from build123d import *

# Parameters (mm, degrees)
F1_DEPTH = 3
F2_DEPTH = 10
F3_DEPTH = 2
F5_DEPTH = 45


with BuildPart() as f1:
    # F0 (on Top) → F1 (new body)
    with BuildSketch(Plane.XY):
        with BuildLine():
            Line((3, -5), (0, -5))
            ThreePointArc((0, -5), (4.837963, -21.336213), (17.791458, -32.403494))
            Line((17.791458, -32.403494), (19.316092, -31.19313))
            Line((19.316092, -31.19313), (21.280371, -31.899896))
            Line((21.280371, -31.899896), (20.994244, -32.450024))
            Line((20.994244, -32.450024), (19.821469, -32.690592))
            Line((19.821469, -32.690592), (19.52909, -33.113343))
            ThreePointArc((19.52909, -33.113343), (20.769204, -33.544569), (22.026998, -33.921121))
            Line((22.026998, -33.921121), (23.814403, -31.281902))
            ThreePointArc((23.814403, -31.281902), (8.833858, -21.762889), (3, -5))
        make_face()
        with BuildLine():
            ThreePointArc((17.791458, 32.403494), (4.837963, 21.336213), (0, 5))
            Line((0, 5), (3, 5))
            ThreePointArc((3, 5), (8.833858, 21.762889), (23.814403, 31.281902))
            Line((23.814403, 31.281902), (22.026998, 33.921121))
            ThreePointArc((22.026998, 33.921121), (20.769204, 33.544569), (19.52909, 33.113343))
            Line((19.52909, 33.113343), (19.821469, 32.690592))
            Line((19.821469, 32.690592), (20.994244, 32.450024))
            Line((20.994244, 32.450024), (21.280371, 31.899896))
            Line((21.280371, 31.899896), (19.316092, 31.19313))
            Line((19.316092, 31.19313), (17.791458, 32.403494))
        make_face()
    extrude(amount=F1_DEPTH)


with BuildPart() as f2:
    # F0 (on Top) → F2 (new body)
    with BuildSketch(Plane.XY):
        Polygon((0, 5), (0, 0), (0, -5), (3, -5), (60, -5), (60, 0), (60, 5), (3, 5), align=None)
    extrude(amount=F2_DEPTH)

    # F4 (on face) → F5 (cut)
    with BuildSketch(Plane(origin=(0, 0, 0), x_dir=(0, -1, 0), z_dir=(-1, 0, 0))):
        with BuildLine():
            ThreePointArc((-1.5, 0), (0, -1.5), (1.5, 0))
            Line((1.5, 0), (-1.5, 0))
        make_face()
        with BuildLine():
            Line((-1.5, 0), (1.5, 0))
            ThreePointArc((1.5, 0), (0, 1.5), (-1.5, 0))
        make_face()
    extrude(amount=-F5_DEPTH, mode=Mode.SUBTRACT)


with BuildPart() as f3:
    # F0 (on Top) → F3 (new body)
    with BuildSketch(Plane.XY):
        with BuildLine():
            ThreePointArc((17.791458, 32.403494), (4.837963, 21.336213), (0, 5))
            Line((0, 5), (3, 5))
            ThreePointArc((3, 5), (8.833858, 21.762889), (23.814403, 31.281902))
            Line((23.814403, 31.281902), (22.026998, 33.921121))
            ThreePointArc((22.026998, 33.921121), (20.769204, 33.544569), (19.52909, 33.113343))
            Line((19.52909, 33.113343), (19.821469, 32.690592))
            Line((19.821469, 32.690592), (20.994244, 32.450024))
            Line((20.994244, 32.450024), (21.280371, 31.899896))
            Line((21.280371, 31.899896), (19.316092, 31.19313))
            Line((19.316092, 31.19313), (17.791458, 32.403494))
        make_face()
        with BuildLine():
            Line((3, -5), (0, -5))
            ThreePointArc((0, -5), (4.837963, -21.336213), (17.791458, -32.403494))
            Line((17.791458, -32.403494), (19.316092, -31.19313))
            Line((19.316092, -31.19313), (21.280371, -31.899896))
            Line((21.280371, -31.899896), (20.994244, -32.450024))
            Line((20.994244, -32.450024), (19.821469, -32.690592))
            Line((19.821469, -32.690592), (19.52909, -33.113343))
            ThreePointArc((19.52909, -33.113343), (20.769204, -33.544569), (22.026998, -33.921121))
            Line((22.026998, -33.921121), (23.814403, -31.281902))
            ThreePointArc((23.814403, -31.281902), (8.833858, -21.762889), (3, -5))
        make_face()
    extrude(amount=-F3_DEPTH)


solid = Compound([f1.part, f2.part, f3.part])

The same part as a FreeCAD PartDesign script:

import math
import FreeCAD as App
import Part
import Sketcher
Q = App.Units.Quantity


def add_polygon(sketch, points):
    """Adds a closed chain of lines whose ends are joined by coincident constraints."""
    first, n = sketch.GeometryCount, len(points)
    for a, b in zip(points, points[1:] + points[:1]):
        sketch.addGeometry(Part.LineSegment(App.Vector(*a, 0), App.Vector(*b, 0)), False)
    for i in range(n):
        sketch.addConstraint(Sketcher.Constraint("Coincident", first + i, 2, first + (i + 1) % n, 1))

doc = App.newDocument("Part")
body = doc.addObject("PartDesign::Body", "Body")
body.AllowCompound = True

# Sketch on XY plane
sketch1 = body.newObject("Sketcher::SketchObject", "Sketch")
sketch1.AttachmentSupport = (doc.getObject("XY_Plane"), [""])
sketch1.MapMode = "FlatFace"
sketch1.addGeometry([
    Part.LineSegment(App.Vector(3, -5, 0), App.Vector(0, -5, 0)),  # 0
    Part.ArcOfCircle(Part.Circle(App.Vector(30.000002, -4.999998, 0), App.Vector(0, 0, 1), 30.000002), math.radians(-179.999996), math.radians(-114.013473)),  # 1
    Part.LineSegment(App.Vector(17.791458, -32.403494, 0), App.Vector(19.316092, -31.19313, 0)),  # 2
    Part.LineSegment(App.Vector(19.316092, -31.19313, 0), App.Vector(21.280371, -31.899896, 0)),  # 3
    Part.LineSegment(App.Vector(21.280371, -31.899896, 0), App.Vector(20.994244, -32.450024, 0)),  # 4
    Part.LineSegment(App.Vector(20.994244, -32.450024, 0), App.Vector(19.821469, -32.690592, 0)),  # 5
    Part.LineSegment(App.Vector(19.821469, -32.690592, 0), App.Vector(19.52909, -33.113343, 0)),  # 6
    Part.ArcOfCircle(Part.Circle(App.Vector(29.999953, -5.000138, 0), App.Vector(0, 0, 1), 29.999855), math.radians(-110.428026), math.radians(-105.412501)),  # 7
    Part.LineSegment(App.Vector(22.026998, -33.921121, 0), App.Vector(23.814403, -31.281902, 0)),  # 8
    Part.ArcOfCircle(Part.Circle(App.Vector(29.999998, -5.000001, 0), App.Vector(0, 0, 1), 26.999998), math.radians(179.999998), math.radians(256.756137)),  # 9
    Part.ArcOfCircle(Part.Circle(App.Vector(30.000002, 4.999998, 0), App.Vector(0, 0, 1), 30.000002), math.radians(114.013473), math.radians(179.999996)),  # 10
    Part.LineSegment(App.Vector(0, 5, 0), App.Vector(3, 5, 0)),  # 11
    Part.ArcOfCircle(Part.Circle(App.Vector(29.999998, 5.000001, 0), App.Vector(0, 0, 1), 26.999998), math.radians(103.243863), math.radians(180.000002)),  # 12
    Part.LineSegment(App.Vector(23.814403, 31.281902, 0), App.Vector(22.026998, 33.921121, 0)),  # 13
    Part.ArcOfCircle(Part.Circle(App.Vector(29.999953, 5.000138, 0), App.Vector(0, 0, 1), 29.999855), math.radians(105.412501), math.radians(110.428026)),  # 14
    Part.LineSegment(App.Vector(19.52909, 33.113343, 0), App.Vector(19.821469, 32.690592, 0)),  # 15
    Part.LineSegment(App.Vector(19.821469, 32.690592, 0), App.Vector(20.994244, 32.450024, 0)),  # 16
    Part.LineSegment(App.Vector(20.994244, 32.450024, 0), App.Vector(21.280371, 31.899896, 0)),  # 17
    Part.LineSegment(App.Vector(21.280371, 31.899896, 0), App.Vector(19.316092, 31.19313, 0)),  # 18
    Part.LineSegment(App.Vector(19.316092, 31.19313, 0), App.Vector(17.791458, 32.403494, 0)),  # 19
], False)
sketch1.addConstraint([
    Sketcher.Constraint("Coincident", 0, 2, 1, 1),
    Sketcher.Constraint("Coincident", 1, 2, 2, 1),
    Sketcher.Constraint("Coincident", 2, 2, 3, 1),
    Sketcher.Constraint("Coincident", 3, 2, 4, 1),
    Sketcher.Constraint("Coincident", 4, 2, 5, 1),
    Sketcher.Constraint("Coincident", 5, 2, 6, 1),
    Sketcher.Constraint("Coincident", 6, 2, 7, 1),
    Sketcher.Constraint("Coincident", 7, 2, 8, 1),
    Sketcher.Constraint("Coincident", 8, 2, 9, 2),
    Sketcher.Constraint("Coincident", 9, 1, 0, 1),
    Sketcher.Constraint("Coincident", 10, 2, 11, 1),
    Sketcher.Constraint("Coincident", 11, 2, 12, 2),
    Sketcher.Constraint("Coincident", 12, 1, 13, 1),
    Sketcher.Constraint("Coincident", 13, 2, 14, 1),
    Sketcher.Constraint("Coincident", 14, 2, 15, 1),
    Sketcher.Constraint("Coincident", 15, 2, 16, 1),
    Sketcher.Constraint("Coincident", 16, 2, 17, 1),
    Sketcher.Constraint("Coincident", 17, 2, 18, 1),
    Sketcher.Constraint("Coincident", 18, 2, 19, 1),
    Sketcher.Constraint("Coincident", 19, 2, 10, 1),
    Sketcher.Constraint("Horizontal", 0),
    Sketcher.Constraint("Horizontal", 11),
    Sketcher.Constraint("Coincident", 9, 3, 1, 3),
    Sketcher.Constraint("Coincident", 12, 3, 10, 3),
    Sketcher.Constraint("PointOnObject", 0, 2, -2),
    Sketcher.Constraint("PointOnObject", 10, 2, -2),
    Sketcher.Constraint("Radius", 9, Q("26.999998 mm")),
    Sketcher.Constraint("Radius", 12, Q("26.999998 mm")),
    Sketcher.Constraint("DistanceX", 0, 2, 0, 1, Q("3 mm")),
    Sketcher.Constraint("DistanceX", 11, 1, 11, 2, Q("3 mm")),
    Sketcher.Constraint("DistanceY", 1, 3, -1, 1, Q("4.999998 mm")),
    Sketcher.Constraint("DistanceY", -1, 1, 10, 3, Q("4.999998 mm")),
    Sketcher.Constraint("DistanceY", 0, 2, -1, 1, Q("5 mm")),
    Sketcher.Constraint("DistanceY", -1, 1, 10, 2, Q("5 mm")),
    Sketcher.Constraint("Radius", 7, Q("29.999855 mm")),
    Sketcher.Constraint("Radius", 14, Q("29.999855 mm")),
    Sketcher.Constraint("DistanceX", 13, 2, 12, 3, Q("7.973 mm")),
    Sketcher.Constraint("DistanceY", 8, 2, -1, 1, Q("31.281902 mm")),
    Sketcher.Constraint("DistanceY", 1, 2, 3, 2, Q("0.503598 mm")),
    Sketcher.Constraint("DistanceX", 5, 2, 3, 2, Q("1.458902 mm")),
    Sketcher.Constraint("DistanceY", 12, 3, 12, 1, Q("26.281901 mm")),
    Sketcher.Constraint("DistanceX", 15, 2, 17, 2, Q("1.458902 mm")),
    Sketcher.Constraint("DistanceY", 19, 2, 15, 2, Q("0.287098 mm")),
    Sketcher.Constraint("DistanceY", 17, 2, 19, 2, Q("0.503598 mm")),
    Sketcher.Constraint("Distance", 2, Q("1.946661 mm")),
    Sketcher.Constraint("Distance", 3, Q("2.087561 mm")),
    Sketcher.Constraint("Distance", 4, Q("0.620088 mm")),
    Sketcher.Constraint("Distance", 8, Q("3.187522 mm")),
    Sketcher.Constraint("Distance", 13, Q("3.187522 mm")),
    Sketcher.Constraint("Distance", 17, Q("0.620088 mm")),
    Sketcher.Constraint("Distance", 18, Q("2.087561 mm")),
    Sketcher.Constraint("Distance", 19, Q("1.946661 mm")),
    Sketcher.Constraint("DistanceY", 2, 2, -1, 1, Q("31.19313 mm")),
    Sketcher.Constraint("DistanceX", -1, 1, 3, 2, Q("21.280371 mm")),
    Sketcher.Constraint("DistanceX", -1, 1, 6, 2, Q("19.52909 mm")),
    Sketcher.Constraint("DistanceY", 7, 2, -1, 1, Q("33.921121 mm")),
    Sketcher.Constraint("DistanceX", -1, 1, 14, 2, Q("19.52909 mm")),
    Sketcher.Constraint("DistanceX", -1, 1, 15, 2, Q("19.821469 mm")),
    Sketcher.Constraint("DistanceY", -1, 1, 18, 2, Q("31.19313 mm")),
    Sketcher.Constraint("DistanceY", 7, 3, 1, 3, Q("0.00014 mm")),
    Sketcher.Constraint("DistanceY", 10, 3, 14, 3, Q("0.00014 mm")),
    Sketcher.Constraint("DistanceY", 4, 2, 3, 2, Q("0.550128 mm")),
    Sketcher.Constraint("DistanceY", 5, 2, 4, 2, Q("0.240568 mm")),
    Sketcher.Constraint("DistanceY", 16, 2, 15, 2, Q("0.240568 mm")),
])
pad1 = body.newObject("PartDesign::Pad", "Pad")
pad1.Profile = sketch1
pad1.Length = 3
body2 = doc.addObject("PartDesign::Body", "Body001")

# Sketch on XY plane
sketch2 = body2.newObject("Sketcher::SketchObject", "Sketch001")
sketch2.AttachmentSupport = (doc.getObject("XY_Plane001"), [""])
sketch2.MapMode = "FlatFace"
add_polygon(sketch2, [(0, 5), (0, -5), (60, -5), (60, 5)])  # lines 0-3
sketch2.addConstraint([
    Sketcher.Constraint("Vertical", 0),
    Sketcher.Constraint("Horizontal", 1),
    Sketcher.Constraint("Vertical", 2),
    Sketcher.Constraint("Horizontal", 3),
    Sketcher.Constraint("Symmetric", 0, 2, 3, 2, -1, 1),
    Sketcher.Constraint("DistanceX", 1, 1, 1, 2, Q("60 mm")),
    Sketcher.Constraint("DistanceY", 0, 2, 0, 1, Q("10 mm")),
])
pad2 = body2.newObject("PartDesign::Pad", "Pad001")
pad2.Profile = sketch2
pad2.Length = 10

# Sketch on YZ plane
sketch3 = body2.newObject("Sketcher::SketchObject", "Sketch002")
sketch3.AttachmentSupport = (doc.getObject("YZ_Plane001"), [""])
sketch3.MapMode = "FlatFace"
sketch3.addGeometry(Part.Circle(App.Vector(0, 0, 0), App.Vector(0, 0, 1), 1.5), False)
sketch3.addConstraint([
    Sketcher.Constraint("Coincident", 0, 3, -1, 1),
    Sketcher.Constraint("Diameter", 0, Q("3 mm")),
])
pocket1 = body2.newObject("PartDesign::Pocket", "Pocket")
pocket1.Profile = sketch3
pocket1.Length = 45
pocket1.Reversed = True
body3 = doc.addObject("PartDesign::Body", "Body002")
body3.AllowCompound = True

# Sketch on XY plane
sketch4 = body3.newObject("Sketcher::SketchObject", "Sketch003")
sketch4.AttachmentSupport = (doc.getObject("XY_Plane002"), [""])
sketch4.MapMode = "FlatFace"
sketch4.addGeometry([
    Part.ArcOfCircle(Part.Circle(App.Vector(30.000002, 4.999998, 0), App.Vector(0, 0, 1), 30.000002), math.radians(114.013473), math.radians(179.999996)),  # 0
    Part.LineSegment(App.Vector(0, 5, 0), App.Vector(3, 5, 0)),  # 1
    Part.ArcOfCircle(Part.Circle(App.Vector(29.999998, 5.000001, 0), App.Vector(0, 0, 1), 26.999998), math.radians(103.243863), math.radians(180.000002)),  # 2
    Part.LineSegment(App.Vector(23.814403, 31.281902, 0), App.Vector(22.026998, 33.921121, 0)),  # 3
    Part.ArcOfCircle(Part.Circle(App.Vector(29.999953, 5.000138, 0), App.Vector(0, 0, 1), 29.999855), math.radians(105.412501), math.radians(110.428026)),  # 4
    Part.LineSegment(App.Vector(19.52909, 33.113343, 0), App.Vector(19.821469, 32.690592, 0)),  # 5
    Part.LineSegment(App.Vector(19.821469, 32.690592, 0), App.Vector(20.994244, 32.450024, 0)),  # 6
    Part.LineSegment(App.Vector(20.994244, 32.450024, 0), App.Vector(21.280371, 31.899896, 0)),  # 7
    Part.LineSegment(App.Vector(21.280371, 31.899896, 0), App.Vector(19.316092, 31.19313, 0)),  # 8
    Part.LineSegment(App.Vector(19.316092, 31.19313, 0), App.Vector(17.791458, 32.403494, 0)),  # 9
    Part.LineSegment(App.Vector(3, -5, 0), App.Vector(0, -5, 0)),  # 10
    Part.ArcOfCircle(Part.Circle(App.Vector(30.000002, -4.999998, 0), App.Vector(0, 0, 1), 30.000002), math.radians(-179.999996), math.radians(-114.013473)),  # 11
    Part.LineSegment(App.Vector(17.791458, -32.403494, 0), App.Vector(19.316092, -31.19313, 0)),  # 12
    Part.LineSegment(App.Vector(19.316092, -31.19313, 0), App.Vector(21.280371, -31.899896, 0)),  # 13
    Part.LineSegment(App.Vector(21.280371, -31.899896, 0), App.Vector(20.994244, -32.450024, 0)),  # 14
    Part.LineSegment(App.Vector(20.994244, -32.450024, 0), App.Vector(19.821469, -32.690592, 0)),  # 15
    Part.LineSegment(App.Vector(19.821469, -32.690592, 0), App.Vector(19.52909, -33.113343, 0)),  # 16
    Part.ArcOfCircle(Part.Circle(App.Vector(29.999953, -5.000138, 0), App.Vector(0, 0, 1), 29.999855), math.radians(-110.428026), math.radians(-105.412501)),  # 17
    Part.LineSegment(App.Vector(22.026998, -33.921121, 0), App.Vector(23.814403, -31.281902, 0)),  # 18
    Part.ArcOfCircle(Part.Circle(App.Vector(29.999998, -5.000001, 0), App.Vector(0, 0, 1), 26.999998), math.radians(179.999998), math.radians(256.756137)),  # 19
], False)
sketch4.addConstraint([
    Sketcher.Constraint("Coincident", 0, 2, 1, 1),
    Sketcher.Constraint("Coincident", 1, 2, 2, 2),
    Sketcher.Constraint("Coincident", 2, 1, 3, 1),
    Sketcher.Constraint("Coincident", 3, 2, 4, 1),
    Sketcher.Constraint("Coincident", 4, 2, 5, 1),
    Sketcher.Constraint("Coincident", 5, 2, 6, 1),
    Sketcher.Constraint("Coincident", 6, 2, 7, 1),
    Sketcher.Constraint("Coincident", 7, 2, 8, 1),
    Sketcher.Constraint("Coincident", 8, 2, 9, 1),
    Sketcher.Constraint("Coincident", 9, 2, 0, 1),
    Sketcher.Constraint("Coincident", 10, 2, 11, 1),
    Sketcher.Constraint("Coincident", 11, 2, 12, 1),
    Sketcher.Constraint("Coincident", 12, 2, 13, 1),
    Sketcher.Constraint("Coincident", 13, 2, 14, 1),
    Sketcher.Constraint("Coincident", 14, 2, 15, 1),
    Sketcher.Constraint("Coincident", 15, 2, 16, 1),
    Sketcher.Constraint("Coincident", 16, 2, 17, 1),
    Sketcher.Constraint("Coincident", 17, 2, 18, 1),
    Sketcher.Constraint("Coincident", 18, 2, 19, 2),
    Sketcher.Constraint("Coincident", 19, 1, 10, 1),
    Sketcher.Constraint("Horizontal", 1),
    Sketcher.Constraint("Horizontal", 10),
    Sketcher.Constraint("Coincident", 2, 3, 0, 3),
    Sketcher.Constraint("Coincident", 19, 3, 11, 3),
    Sketcher.Constraint("PointOnObject", 0, 2, -2),
    Sketcher.Constraint("PointOnObject", 10, 2, -2),
    Sketcher.Constraint("Radius", 2, Q("26.999998 mm")),
    Sketcher.Constraint("Radius", 19, Q("26.999998 mm")),
    Sketcher.Constraint("DistanceX", 1, 1, 1, 2, Q("3 mm")),
    Sketcher.Constraint("DistanceX", 10, 2, 10, 1, Q("3 mm")),
    Sketcher.Constraint("DistanceY", -1, 1, 0, 3, Q("4.999998 mm")),
    Sketcher.Constraint("DistanceY", 11, 3, -1, 1, Q("4.999998 mm")),
    Sketcher.Constraint("DistanceY", -1, 1, 0, 2, Q("5 mm")),
    Sketcher.Constraint("DistanceY", 10, 2, -1, 1, Q("5 mm")),
    Sketcher.Constraint("Radius", 4, Q("29.999855 mm")),
    Sketcher.Constraint("Radius", 17, Q("29.999855 mm")),
    Sketcher.Constraint("DistanceX", 3, 2, 2, 3, Q("7.973 mm")),
    Sketcher.Constraint("DistanceY", 18, 2, -1, 1, Q("31.281902 mm")),
    Sketcher.Constraint("DistanceY", 2, 3, 2, 1, Q("26.281901 mm")),
    Sketcher.Constraint("DistanceX", 5, 2, 7, 2, Q("1.458902 mm")),
    Sketcher.Constraint("DistanceY", 9, 2, 5, 2, Q("0.287098 mm")),
    Sketcher.Constraint("DistanceY", 7, 2, 9, 2, Q("0.503598 mm")),
    Sketcher.Constraint("DistanceY", 11, 2, 13, 2, Q("0.503598 mm")),
    Sketcher.Constraint("DistanceX", 15, 2, 13, 2, Q("1.458902 mm")),
    Sketcher.Constraint("Distance", 3, Q("3.187522 mm")),
    Sketcher.Constraint("Distance", 7, Q("0.620088 mm")),
    Sketcher.Constraint("Distance", 8, Q("2.087561 mm")),
    Sketcher.Constraint("Distance", 9, Q("1.946661 mm")),
    Sketcher.Constraint("Distance", 12, Q("1.946661 mm")),
    Sketcher.Constraint("Distance", 13, Q("2.087561 mm")),
    Sketcher.Constraint("Distance", 14, Q("0.620088 mm")),
    Sketcher.Constraint("Distance", 18, Q("3.187522 mm")),
    Sketcher.Constraint("DistanceX", -1, 1, 4, 2, Q("19.52909 mm")),
    Sketcher.Constraint("DistanceX", -1, 1, 5, 2, Q("19.821469 mm")),
    Sketcher.Constraint("DistanceY", -1, 1, 8, 2, Q("31.19313 mm")),
    Sketcher.Constraint("DistanceY", 12, 2, -1, 1, Q("31.19313 mm")),
    Sketcher.Constraint("DistanceX", -1, 1, 13, 2, Q("21.280371 mm")),
    Sketcher.Constraint("DistanceX", -1, 1, 16, 2, Q("19.52909 mm")),
    Sketcher.Constraint("DistanceY", 17, 2, -1, 1, Q("33.921121 mm")),
    Sketcher.Constraint("DistanceY", 0, 3, 4, 3, Q("0.00014 mm")),
    Sketcher.Constraint("DistanceY", 17, 3, 11, 3, Q("0.00014 mm")),
    Sketcher.Constraint("DistanceY", 6, 2, 5, 2, Q("0.240568 mm")),
    Sketcher.Constraint("DistanceY", 14, 2, 13, 2, Q("0.550128 mm")),
    Sketcher.Constraint("DistanceY", 15, 2, 14, 2, Q("0.240568 mm")),
])
pad3 = body3.newObject("PartDesign::Pad", "Pad002")
pad3.Profile = sketch4
pad3.Length = 2
pad3.Reversed = True

doc.recompute()
